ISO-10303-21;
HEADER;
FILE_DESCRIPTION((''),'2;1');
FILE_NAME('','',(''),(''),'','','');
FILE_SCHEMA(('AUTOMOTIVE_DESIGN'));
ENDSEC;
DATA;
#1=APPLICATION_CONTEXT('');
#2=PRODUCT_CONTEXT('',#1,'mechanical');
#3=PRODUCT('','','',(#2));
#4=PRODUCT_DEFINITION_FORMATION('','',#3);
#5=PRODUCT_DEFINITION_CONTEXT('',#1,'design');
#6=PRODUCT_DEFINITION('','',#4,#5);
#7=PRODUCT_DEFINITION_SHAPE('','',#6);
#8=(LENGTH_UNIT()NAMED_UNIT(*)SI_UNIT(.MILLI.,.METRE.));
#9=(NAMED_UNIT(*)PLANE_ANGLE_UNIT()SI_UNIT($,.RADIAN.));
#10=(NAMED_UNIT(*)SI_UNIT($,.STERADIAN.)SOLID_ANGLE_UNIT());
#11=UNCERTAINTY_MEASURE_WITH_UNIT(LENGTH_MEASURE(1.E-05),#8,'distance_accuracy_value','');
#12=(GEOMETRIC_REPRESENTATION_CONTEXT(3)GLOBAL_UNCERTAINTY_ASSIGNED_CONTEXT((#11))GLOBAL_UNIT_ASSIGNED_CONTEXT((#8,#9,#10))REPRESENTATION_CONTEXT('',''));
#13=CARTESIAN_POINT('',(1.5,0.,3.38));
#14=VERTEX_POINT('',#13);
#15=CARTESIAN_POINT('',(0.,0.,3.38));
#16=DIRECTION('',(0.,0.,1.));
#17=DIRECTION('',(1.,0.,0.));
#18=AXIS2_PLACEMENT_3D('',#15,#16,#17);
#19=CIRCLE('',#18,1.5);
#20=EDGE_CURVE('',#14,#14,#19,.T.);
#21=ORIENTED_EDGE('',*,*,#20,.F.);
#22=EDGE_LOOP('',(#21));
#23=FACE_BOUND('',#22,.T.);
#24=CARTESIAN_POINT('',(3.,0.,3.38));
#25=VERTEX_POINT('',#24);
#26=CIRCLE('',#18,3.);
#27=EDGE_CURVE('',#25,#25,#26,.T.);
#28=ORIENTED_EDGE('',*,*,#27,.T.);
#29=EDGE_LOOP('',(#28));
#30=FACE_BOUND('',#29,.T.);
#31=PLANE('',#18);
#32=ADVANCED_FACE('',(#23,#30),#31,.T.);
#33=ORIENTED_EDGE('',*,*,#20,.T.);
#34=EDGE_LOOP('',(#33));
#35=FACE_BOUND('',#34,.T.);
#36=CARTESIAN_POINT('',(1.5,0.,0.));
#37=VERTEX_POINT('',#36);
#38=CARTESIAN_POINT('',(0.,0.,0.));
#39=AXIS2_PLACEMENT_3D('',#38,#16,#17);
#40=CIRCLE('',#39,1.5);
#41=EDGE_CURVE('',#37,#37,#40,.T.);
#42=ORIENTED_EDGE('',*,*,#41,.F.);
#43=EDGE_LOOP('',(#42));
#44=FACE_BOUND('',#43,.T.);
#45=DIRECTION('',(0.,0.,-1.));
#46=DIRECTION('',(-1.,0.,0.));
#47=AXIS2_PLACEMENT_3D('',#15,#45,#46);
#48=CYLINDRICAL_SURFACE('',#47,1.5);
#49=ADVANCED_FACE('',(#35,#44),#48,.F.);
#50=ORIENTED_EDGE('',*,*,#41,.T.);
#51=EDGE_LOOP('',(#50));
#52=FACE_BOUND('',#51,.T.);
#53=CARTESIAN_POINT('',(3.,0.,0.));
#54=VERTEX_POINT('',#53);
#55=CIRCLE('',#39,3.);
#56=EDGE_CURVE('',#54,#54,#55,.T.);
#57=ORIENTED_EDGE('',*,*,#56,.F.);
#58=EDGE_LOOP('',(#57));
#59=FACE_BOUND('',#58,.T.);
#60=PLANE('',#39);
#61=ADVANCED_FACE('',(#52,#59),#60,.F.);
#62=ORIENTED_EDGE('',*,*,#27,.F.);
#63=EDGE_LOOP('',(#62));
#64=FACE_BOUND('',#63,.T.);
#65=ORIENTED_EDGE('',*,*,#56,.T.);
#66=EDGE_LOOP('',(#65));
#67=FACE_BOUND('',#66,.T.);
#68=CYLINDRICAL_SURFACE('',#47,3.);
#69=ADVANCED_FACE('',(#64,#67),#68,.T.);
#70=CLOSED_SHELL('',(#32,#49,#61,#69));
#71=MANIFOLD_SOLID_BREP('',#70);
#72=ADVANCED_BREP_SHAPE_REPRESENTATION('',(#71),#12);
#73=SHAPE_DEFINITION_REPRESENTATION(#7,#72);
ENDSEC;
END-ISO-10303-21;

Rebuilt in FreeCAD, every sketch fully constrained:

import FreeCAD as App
import Part
import Sketcher
from FreeCAD import Vector
Q = App.Units.Quantity

doc = App.newDocument("Part")
params = doc.addObject("Spreadsheet::Sheet", "Params")
for row, (alias, value) in enumerate([
    ("sketch1_diameter", "6 mm"),
    ("sketch1_diameter2", "3 mm"),
    ("pad1_length", "3.38 mm"),
], start=1):
    params.set(f"A{row}", alias)
    params.set(f"B{row}", "=" + value)
    params.setAlias(f"B{row}", alias)

body = doc.addObject("PartDesign::Body", "Body")

sketch1 = body.newObject("Sketcher::SketchObject", "Sketch")
sketch1.AttachmentSupport = (doc.getObject("XY_Plane"), [""])
sketch1.MapMode = "FlatFace"
sketch1.addGeometry([
    Part.Circle(Vector(0, 0, 0), Vector(0, 0, 1), 3),
    Part.Circle(Vector(0, 0, 0), Vector(0, 0, 1), 1.5),
], False)
sketch1.addConstraint([
    Sketcher.Constraint("Coincident", 0, 3, -1, 1),
    Sketcher.Constraint("Coincident", 1, 3, -1, 1),
    Sketcher.Constraint("Diameter", 0, Q("6 mm")),
    Sketcher.Constraint("Diameter", 1, Q("3 mm")),
])
sketch1.setExpression("Constraints[2]", "Params.sketch1_diameter")
sketch1.setExpression("Constraints[3]", "Params.sketch1_diameter2")
pad1 = body.newObject("PartDesign::Pad", "Pad")
pad1.Profile = sketch1
pad1.setExpression("Length", "Params.pad1_length")

doc.recompute()
